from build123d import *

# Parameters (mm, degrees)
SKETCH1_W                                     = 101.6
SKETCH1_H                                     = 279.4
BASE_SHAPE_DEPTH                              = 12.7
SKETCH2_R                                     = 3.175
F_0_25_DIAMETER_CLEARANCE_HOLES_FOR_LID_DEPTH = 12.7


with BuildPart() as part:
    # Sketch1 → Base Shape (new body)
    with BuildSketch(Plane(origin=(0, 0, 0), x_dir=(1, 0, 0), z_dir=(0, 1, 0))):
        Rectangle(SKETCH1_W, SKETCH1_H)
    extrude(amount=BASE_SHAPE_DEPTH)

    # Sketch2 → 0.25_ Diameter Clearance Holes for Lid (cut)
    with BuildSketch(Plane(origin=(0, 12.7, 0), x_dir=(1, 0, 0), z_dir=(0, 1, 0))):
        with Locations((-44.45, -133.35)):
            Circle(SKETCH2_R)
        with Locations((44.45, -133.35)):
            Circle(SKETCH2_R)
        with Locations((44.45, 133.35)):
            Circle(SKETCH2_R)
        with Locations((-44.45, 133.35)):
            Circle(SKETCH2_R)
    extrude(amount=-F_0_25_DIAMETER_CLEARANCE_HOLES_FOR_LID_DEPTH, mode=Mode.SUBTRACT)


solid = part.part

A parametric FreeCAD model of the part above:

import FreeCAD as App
import Part
import Sketcher

V = App.Vector
Q = App.Units.Quantity


def add_polygon(sketch, points):
    """Adds a closed chain of lines whose ends are joined by coincident constraints."""
    first, n = sketch.GeometryCount, len(points)
    for a, b in zip(points, points[1:] + points[:1]):
        sketch.addGeometry(Part.LineSegment(App.Vector(*a, 0), App.Vector(*b, 0)), False)
    for i in range(n):
        sketch.addConstraint(Sketcher.Constraint("Coincident", first + i, 2, first + (i + 1) % n, 1))

doc = App.newDocument("Part")
params = doc.addObject("Spreadsheet::Sheet", "Params")
for row, (alias, value) in enumerate([
    ("sketch1_width", "4 in"),
    ("sketch1_height", "11 in"),
    ("pad1_length", "0.5 in"),
    ("sketch2_diameter", "0.25 in"),
    ("pocket1_length", "0.5 in"),
], start=1):
    params.set(f"A{row}", alias)
    params.set(f"B{row}", "=" + value)
    params.setAlias(f"B{row}", alias)

body = doc.addObject("PartDesign::Body", "Body")

# Sketch on XZ plane
sketch1 = body.newObject("Sketcher::SketchObject", "Sketch")
sketch1.AttachmentSupport = (doc.getObject("XZ_Plane"), [""])
sketch1.MapMode = "FlatFace"
add_polygon(sketch1, [(-51, -140), (-51, 140), (51, 140), (51, -140)])  # lines 0-3
sketch1.addConstraint([
    Sketcher.Constraint("Vertical", 0),
    Sketcher.Constraint("Horizontal", 1),
    Sketcher.Constraint("Vertical", 2),
    Sketcher.Constraint("Horizontal", 3),
    Sketcher.Constraint("Symmetric", 0, 2, 2, 2, -1, 1),
    Sketcher.Constraint("DistanceX", 1, 1, 1, 2, Q("4 in")),
    Sketcher.Constraint("DistanceY", 0, 1, 0, 2, Q("11 in")),
])
sketch1.setExpression("Constraints[9]", "Params.sketch1_width")
sketch1.setExpression("Constraints[10]", "Params.sketch1_height")
pad1 = body.newObject("PartDesign::Pad", "Pad")
pad1.Profile = sketch1
pad1.setExpression("Length", "Params.pad1_length")
pad1.Reversed = True

# Sketch on XZ plane
sketch2 = body.newObject("Sketcher::SketchObject", "Sketch001")
sketch2.AttachmentSupport = (doc.getObject("XZ_Plane"), [""])
sketch2.MapMode = "FlatFace"
sketch2.AttachmentOffset = App.Placement(V(0, 0, -0.5 * 25.4), App.Rotation())
sketch2.addGeometry([
    Part.Circle(V(-44.5, 133.3, 0), V(0, 0, 1), 3.2),
    Part.Circle(V(44.5, 133.3, 0), V(0, 0, 1), 3.2),
    Part.Circle(V(44.5, -133.3, 0), V(0, 0, 1), 3.2),
    Part.Circle(V(-44.5, -133.3, 0), V(0, 0, 1), 3.2),
], False)
sketch2.addConstraint([
    Sketcher.Constraint("Equal", 0, 1),
    Sketcher.Constraint("Equal", 1, 2),
    Sketcher.Constraint("Equal", 2, 3),
    Sketcher.Constraint("Symmetric", 0, 3, 2, 3, -1, 1),
    Sketcher.Constraint("Symmetric", 1, 3, 3, 3, -1, 1),
    Sketcher.Constraint("Symmetric", 0, 3, 1, 3, -2),
    Sketcher.Constraint("Diameter", 0, Q("0.25 in")),
    Sketcher.Constraint("DistanceX", 0, 3, 1, 3, Q("3.5 in")),
    Sketcher.Constraint("DistanceY", 2, 3, 1, 3, Q("10.5 in")),
])
sketch2.setExpression("Constraints[6]", "Params.sketch2_diameter")
pocket1 = body.newObject("PartDesign::Pocket", "Pocket")
pocket1.Profile = sketch2
pocket1.setExpression("Length", "Params.pocket1_length")
pocket1.Reversed = True

doc.recompute()
